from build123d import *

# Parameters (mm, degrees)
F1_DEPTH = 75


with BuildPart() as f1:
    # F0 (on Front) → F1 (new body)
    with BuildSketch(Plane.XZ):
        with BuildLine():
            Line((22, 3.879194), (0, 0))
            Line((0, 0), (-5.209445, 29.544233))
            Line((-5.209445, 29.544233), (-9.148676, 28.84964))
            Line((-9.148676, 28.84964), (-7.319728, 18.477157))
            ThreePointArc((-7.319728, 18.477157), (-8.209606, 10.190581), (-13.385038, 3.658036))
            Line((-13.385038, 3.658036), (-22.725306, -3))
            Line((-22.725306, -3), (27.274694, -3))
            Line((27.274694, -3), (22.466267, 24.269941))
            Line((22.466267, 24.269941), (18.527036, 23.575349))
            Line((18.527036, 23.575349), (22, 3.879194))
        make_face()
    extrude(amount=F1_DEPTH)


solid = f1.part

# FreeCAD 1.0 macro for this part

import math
import FreeCAD as App
import Part
import Sketcher

V = App.Vector
Q = App.Units.Quantity

doc = App.newDocument("Part")
body = doc.addObject("PartDesign::Body", "Body")

# Sketch on XZ plane
sketch1 = body.newObject("Sketcher::SketchObject", "Sketch")
sketch1.AttachmentSupport = (doc.getObject("XZ_Plane"), [""])
sketch1.MapMode = "FlatFace"
sketch1.addGeometry([
    Part.LineSegment(V(22, 3.9, 0), V(0, 0, 0)),  # 0
    Part.LineSegment(V(0, 0, 0), V(-5.2, 29.5, 0)),  # 1
    Part.LineSegment(V(-5.2, 29.5, 0), V(-9.1, 28.8, 0)),  # 2
    Part.LineSegment(V(-9.1, 28.8, 0), V(-7.3, 18.5, 0)),  # 3
    Part.ArcOfCircle(Part.Circle(V(-22.1, 15.9, 0), V(0, 0, 1), 15), math.radians(-55), math.radians(10)),  # 4
    Part.LineSegment(V(-13.4, 3.7, 0), V(-22.7, -3, 0)),  # 5
    Part.LineSegment(V(-22.7, -3, 0), V(27.3, -3, 0)),  # 6
    Part.LineSegment(V(27.3, -3, 0), V(22.5, 24.3, 0)),  # 7
    Part.LineSegment(V(22.5, 24.3, 0), V(18.5, 23.6, 0)),  # 8
    Part.LineSegment(V(18.5, 23.6, 0), V(22, 3.9, 0)),  # 9
], False)
sketch1.addConstraint([
    Sketcher.Constraint("Coincident", 0, 2, 1, 1),
    Sketcher.Constraint("Coincident", 1, 2, 2, 1),
    Sketcher.Constraint("Coincident", 2, 2, 3, 1),
    Sketcher.Constraint("Tangent", 3, 2, 4, 2),
    Sketcher.Constraint("Tangent", 4, 1, 5, 1),
    Sketcher.Constraint("Coincident", 5, 2, 6, 1),
    Sketcher.Constraint("Coincident", 6, 2, 7, 1),
    Sketcher.Constraint("Coincident", 7, 2, 8, 1),
    Sketcher.Constraint("Coincident", 8, 2, 9, 1),
    Sketcher.Constraint("Coincident", 9, 2, 0, 1),
    Sketcher.Constraint("Horizontal", 6),
    Sketcher.Constraint("Coincident", 0, 2, -1, 1),
    Sketcher.Constraint("Perpendicular", 0, 1),
    Sketcher.Constraint("Perpendicular", 1, 2),
    Sketcher.Constraint("Perpendicular", 2, 3),
    Sketcher.Constraint("Parallel", 3, 7),
    Sketcher.Constraint("Perpendicular", 7, 8),
    Sketcher.Constraint("Perpendicular", 8, 9),
    Sketcher.Constraint("Equal", 2, 8),
    Sketcher.Constraint("Radius", 4, Q("15.000001 mm")),
    Sketcher.Constraint("DistanceX", 6, 1, 6, 2, Q("50 mm")),
    Sketcher.Constraint("Angle", 0, Q("-169.999999 deg")),
    Sketcher.Constraint("Distance", 1, Q("30 mm")),
    Sketcher.Constraint("Distance", 2, Q("4 mm")),
    Sketcher.Constraint("Distance", 9, Q("20 mm")),
    Sketcher.Constraint("DistanceY", 5, 2, -1, 1, Q("3 mm")),
    Sketcher.Constraint("DistanceX", -1, 1, 9, 2, Q("22 mm")),
    Sketcher.Constraint("Distance", 5, Q("11.470399 mm")),
])
pad1 = body.newObject("PartDesign::Pad", "Pad")
pad1.Profile = sketch1
pad1.Length = 75

doc.recompute()
